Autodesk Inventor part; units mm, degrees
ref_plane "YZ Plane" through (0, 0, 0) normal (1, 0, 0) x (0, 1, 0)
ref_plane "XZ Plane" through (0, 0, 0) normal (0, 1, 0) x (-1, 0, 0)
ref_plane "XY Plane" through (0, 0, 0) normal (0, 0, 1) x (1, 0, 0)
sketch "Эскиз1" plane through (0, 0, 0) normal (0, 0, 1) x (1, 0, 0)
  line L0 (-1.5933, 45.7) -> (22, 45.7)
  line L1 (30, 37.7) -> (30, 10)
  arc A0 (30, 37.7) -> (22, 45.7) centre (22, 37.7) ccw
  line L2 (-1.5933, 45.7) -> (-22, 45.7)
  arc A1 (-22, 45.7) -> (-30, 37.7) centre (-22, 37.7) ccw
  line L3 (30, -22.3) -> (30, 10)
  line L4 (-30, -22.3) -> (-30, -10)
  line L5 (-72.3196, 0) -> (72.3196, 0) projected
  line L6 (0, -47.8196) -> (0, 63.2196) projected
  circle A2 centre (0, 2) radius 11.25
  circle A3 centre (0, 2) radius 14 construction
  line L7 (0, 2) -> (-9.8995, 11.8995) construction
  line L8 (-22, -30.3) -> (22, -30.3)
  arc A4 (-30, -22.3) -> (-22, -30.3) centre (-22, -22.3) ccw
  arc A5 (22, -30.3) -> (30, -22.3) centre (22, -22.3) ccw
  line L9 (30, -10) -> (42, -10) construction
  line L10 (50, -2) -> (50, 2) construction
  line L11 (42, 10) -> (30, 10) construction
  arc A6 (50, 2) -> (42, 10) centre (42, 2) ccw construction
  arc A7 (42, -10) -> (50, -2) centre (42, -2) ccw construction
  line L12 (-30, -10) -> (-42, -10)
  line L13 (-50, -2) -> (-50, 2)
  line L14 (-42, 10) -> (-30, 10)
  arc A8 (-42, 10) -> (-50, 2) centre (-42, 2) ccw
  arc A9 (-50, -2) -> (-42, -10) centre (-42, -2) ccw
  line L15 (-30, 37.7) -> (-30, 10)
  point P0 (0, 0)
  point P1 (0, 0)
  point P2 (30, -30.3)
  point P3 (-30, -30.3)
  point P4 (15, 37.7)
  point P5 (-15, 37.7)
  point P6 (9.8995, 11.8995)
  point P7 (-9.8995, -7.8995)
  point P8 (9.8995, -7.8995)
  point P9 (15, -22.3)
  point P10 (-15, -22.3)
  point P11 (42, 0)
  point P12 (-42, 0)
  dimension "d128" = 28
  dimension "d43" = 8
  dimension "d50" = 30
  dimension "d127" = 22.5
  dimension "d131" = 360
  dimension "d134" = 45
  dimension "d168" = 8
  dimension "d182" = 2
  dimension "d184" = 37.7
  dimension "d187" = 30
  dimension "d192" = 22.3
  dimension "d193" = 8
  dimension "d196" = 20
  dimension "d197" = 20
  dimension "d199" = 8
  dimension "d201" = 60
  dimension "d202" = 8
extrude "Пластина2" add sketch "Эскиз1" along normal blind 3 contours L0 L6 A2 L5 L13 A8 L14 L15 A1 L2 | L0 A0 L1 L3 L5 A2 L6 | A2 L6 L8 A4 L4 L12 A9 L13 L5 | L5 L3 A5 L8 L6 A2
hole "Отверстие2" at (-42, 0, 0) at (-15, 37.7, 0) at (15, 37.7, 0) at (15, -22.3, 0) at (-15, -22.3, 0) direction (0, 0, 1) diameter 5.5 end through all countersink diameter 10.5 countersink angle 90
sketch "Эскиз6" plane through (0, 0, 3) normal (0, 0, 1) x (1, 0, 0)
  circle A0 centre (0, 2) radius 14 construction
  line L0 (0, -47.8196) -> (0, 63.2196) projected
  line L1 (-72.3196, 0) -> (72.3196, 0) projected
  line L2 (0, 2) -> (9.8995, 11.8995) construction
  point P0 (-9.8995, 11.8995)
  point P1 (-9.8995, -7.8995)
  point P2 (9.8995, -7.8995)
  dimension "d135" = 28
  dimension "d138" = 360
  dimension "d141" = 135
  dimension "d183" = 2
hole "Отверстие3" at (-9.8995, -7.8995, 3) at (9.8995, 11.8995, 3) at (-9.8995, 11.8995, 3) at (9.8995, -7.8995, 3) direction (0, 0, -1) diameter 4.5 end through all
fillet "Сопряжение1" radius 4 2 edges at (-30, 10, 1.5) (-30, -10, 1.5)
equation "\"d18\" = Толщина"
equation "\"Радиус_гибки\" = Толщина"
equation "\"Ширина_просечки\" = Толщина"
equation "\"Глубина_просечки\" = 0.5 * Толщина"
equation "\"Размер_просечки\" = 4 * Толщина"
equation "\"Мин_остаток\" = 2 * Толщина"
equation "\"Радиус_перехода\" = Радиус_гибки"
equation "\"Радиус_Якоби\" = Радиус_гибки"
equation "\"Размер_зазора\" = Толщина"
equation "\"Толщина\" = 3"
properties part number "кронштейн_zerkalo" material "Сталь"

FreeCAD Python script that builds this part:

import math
import FreeCAD as App
import Part
import Sketcher

V = App.Vector


def edges_at(feature, points):
    """Names of the edges that pass closest to the given points."""
    edges = feature.Shape.Edges
    near = lambda p: min(range(len(edges)), key=lambda i: edges[i].distToShape(Part.Vertex(*p))[0])
    return sorted({f"Edge{near(p) + 1}" for p in points})

doc = App.newDocument("Part")
params = doc.addObject("Spreadsheet::Sheet", "Params")
for row, (alias, value) in enumerate([
    ("sketch1_radius", "8 mm"),
    ("sketch1_diameter", "22.5 mm"),
    ("sketch1_height", "60 mm"),
    ("pad1_length", "3 mm"),
    ("sketch2_diameter", "5.5 mm"),
    ("hole_diameter", "5.5 mm"),
    ("hole_csink_diameter", "10.5 mm"),
    ("sketch3_diameter", "4.5 mm"),
    ("hole2_diameter", "4.5 mm"),
    ("fillet_radius", "4 mm"),
], start=1):
    params.set(f"A{row}", alias)
    params.set(f"B{row}", "=" + value)
    params.setAlias(f"B{row}", alias)

body = doc.addObject("PartDesign::Body", "Body")

# Sketch on XY plane
sketch1 = body.newObject("Sketcher::SketchObject", "Sketch")
sketch1.AttachmentSupport = (doc.getObject("XY_Plane"), [""])
sketch1.MapMode = "FlatFace"
sketch1.addGeometry(Part.ArcOfCircle(Part.Circle(V(-22, 37.7, 0), V(0, 0, 1), 8), math.radians(90), math.radians(180)), False)
sketch1.addGeometry(Part.LineSegment(V(-30, 37.7, 0), V(-30, 10, 0)), False)
sketch1.addGeometry(Part.LineSegment(V(-30, 10, 0), V(-42, 10, 0)), False)
sketch1.addGeometry(Part.ArcOfCircle(Part.Circle(V(-42, 2, 0), V(0, 0, 1), 8), math.radians(90), math.radians(180)), False)
sketch1.addGeometry(Part.LineSegment(V(-50, 2, 0), V(-50, -2, 0)), False)
sketch1.addGeometry(Part.ArcOfCircle(Part.Circle(V(-42, -2, 0), V(0, 0, 1), 8), math.radians(180), math.radians(270)), False)
sketch1.addGeometry(Part.LineSegment(V(-42, -10, 0), V(-30, -10, 0)), False)
sketch1.addGeometry(Part.LineSegment(V(-30, -10, 0), V(-30, -22.3, 0)), False)
sketch1.addGeometry(Part.ArcOfCircle(Part.Circle(V(-22, -22.3, 0), V(0, 0, 1), 8), math.radians(180), math.radians(270)), False)
sketch1.addGeometry(Part.LineSegment(V(-22, -30.3, 0), V(22, -30.3, 0)), False)
sketch1.addGeometry(Part.ArcOfCircle(Part.Circle(V(22, -22.3, 0), V(0, 0, 1), 8), math.radians(-90), math.radians(0)), False)
sketch1.addGeometry(Part.LineSegment(V(30, -22.3, 0), V(30, 37.7, 0)), False)
sketch1.addGeometry(Part.ArcOfCircle(Part.Circle(V(22, 37.7, 0), V(0, 0, 1), 8), math.radians(0), math.radians(90)), False)
sketch1.addGeometry(Part.LineSegment(V(22, 45.7, 0), V(-22, 45.7, 0)), False)
sketch1.addGeometry(Part.Circle(V(0, 2, 0), V(0, 0, 1), 11.2), False)
sketch1.addConstraint(Sketcher.Constraint("Tangent", 0, 2, 1, 1))
sketch1.addConstraint(Sketcher.Constraint("Coincident", 1, 2, 2, 1))
sketch1.addConstraint(Sketcher.Constraint("Tangent", 2, 2, 3, 1))
sketch1.addConstraint(Sketcher.Constraint("Tangent", 3, 2, 4, 1))
sketch1.addConstraint(Sketcher.Constraint("Tangent", 4, 2, 5, 1))
sketch1.addConstraint(Sketcher.Constraint("Tangent", 5, 2, 6, 1))
sketch1.addConstraint(Sketcher.Constraint("Coincident", 6, 2, 7, 1))
sketch1.addConstraint(Sketcher.Constraint("Tangent", 7, 2, 8, 1))
sketch1.addConstraint(Sketcher.Constraint("Tangent", 8, 2, 9, 1))
sketch1.addConstraint(Sketcher.Constraint("Tangent", 9, 2, 10, 1))
sketch1.addConstraint(Sketcher.Constraint("Tangent", 10, 2, 11, 1))
sketch1.addConstraint(Sketcher.Constraint("Tangent", 11, 2, 12, 1))
sketch1.addConstraint(Sketcher.Constraint("Tangent", 12, 2, 13, 1))
sketch1.addConstraint(Sketcher.Constraint("Tangent", 13, 2, 0, 1))
sketch1.addConstraint(Sketcher.Constraint("Vertical", 1))
sketch1.addConstraint(Sketcher.Constraint("Horizontal", 2))
sketch1.addConstraint(Sketcher.Constraint("Vertical", 4))
sketch1.addConstraint(Sketcher.Constraint("Horizontal", 6))
sketch1.addConstraint(Sketcher.Constraint("Vertical", 7))
sketch1.addConstraint(Sketcher.Constraint("Horizontal", 9))
sketch1.addConstraint(Sketcher.Constraint("Vertical", 11))
sketch1.addConstraint(Sketcher.Constraint("Horizontal", 13))
sketch1.addConstraint(Sketcher.Constraint("Equal", 0, 3))
sketch1.addConstraint(Sketcher.Constraint("Equal", 3, 5))
sketch1.addConstraint(Sketcher.Constraint("Equal", 5, 8))
sketch1.addConstraint(Sketcher.Constraint("Equal", 8, 10))
sketch1.addConstraint(Sketcher.Constraint("Equal", 10, 12))
sketch1.addConstraint(Sketcher.Constraint("Symmetric", 1, 2, 6, 2, -1))
sketch1.addConstraint(Sketcher.Constraint("PointOnObject", 14, 3, -2))
sketch1.addConstraint(Sketcher.Constraint("Horizontal", 3, 3, 14, 3))
sketch1.addConstraint(Sketcher.Constraint("Radius", 0, 8.0))
sketch1.addConstraint(Sketcher.Constraint("Diameter", 14, 22.5))
sketch1.addConstraint(Sketcher.Constraint("DistanceY", 11, 1, 11, 2, 60.0))
sketch1.addConstraint(Sketcher.Constraint("DistanceY", -1, 1, 3, 3, 2.0))
sketch1.addConstraint(Sketcher.Constraint("DistanceX", 0, 2, -1, 1, 30.0))
sketch1.addConstraint(Sketcher.Constraint("DistanceX", -1, 1, 10, 2, 30.0))
sketch1.addConstraint(Sketcher.Constraint("DistanceX", 3, 3, 0, 3, 20.0))
sketch1.addConstraint(Sketcher.Constraint("DistanceY", -1, 1, 0, 3, 37.7))
sketch1.setExpression("Constraints[30]", "Params.sketch1_radius")
sketch1.setExpression("Constraints[31]", "Params.sketch1_diameter")
sketch1.setExpression("Constraints[32]", "Params.sketch1_height")
pad1 = body.newObject("PartDesign::Pad", "Pad")
pad1.Profile = sketch1
pad1.setExpression("Length", "Params.pad1_length")

# Sketch on XY plane
sketch2 = body.newObject("Sketcher::SketchObject", "Sketch001")
sketch2.AttachmentSupport = (doc.getObject("XY_Plane"), [""])
sketch2.MapMode = "FlatFace"
sketch2.addGeometry(Part.Circle(V(-42, 0, 0), V(0, 0, 1), 2.8), False)
sketch2.addGeometry(Part.Circle(V(-15, 37.7, 0), V(0, 0, 1), 2.8), False)
sketch2.addGeometry(Part.Circle(V(15, 37.7, 0), V(0, 0, 1), 2.8), False)
sketch2.addGeometry(Part.Circle(V(15, -22.3, 0), V(0, 0, 1), 2.8), False)
sketch2.addGeometry(Part.Circle(V(-15, -22.3, 0), V(0, 0, 1), 2.8), False)
sketch2.addConstraint(Sketcher.Constraint("Equal", 0, 1))
sketch2.addConstraint(Sketcher.Constraint("Equal", 1, 2))
sketch2.addConstraint(Sketcher.Constraint("Equal", 2, 3))
sketch2.addConstraint(Sketcher.Constraint("Equal", 3, 4))
sketch2.addConstraint(Sketcher.Constraint("Symmetric", 1, 3, 2, 3, -2))
sketch2.addConstraint(Sketcher.Constraint("Symmetric", 3, 3, 4, 3, -2))
sketch2.addConstraint(Sketcher.Constraint("PointOnObject", 0, 3, -1))
sketch2.addConstraint(Sketcher.Constraint("Vertical", 2, 3, 3, 3))
sketch2.addConstraint(Sketcher.Constraint("Diameter", 0, 5.5))
sketch2.addConstraint(Sketcher.Constraint("DistanceX", 0, 3, -1, 1, 42.0))
sketch2.addConstraint(Sketcher.Constraint("DistanceX", 1, 3, -1, 1, 15.0))
sketch2.addConstraint(Sketcher.Constraint("DistanceY", 3, 3, 2, 3, 60.0))
sketch2.addConstraint(Sketcher.Constraint("DistanceY", -1, 1, 1, 3, 37.7))
sketch2.setExpression("Constraints[8]", "Params.sketch2_diameter")
doc.recompute()
hole = body.newObject("PartDesign::Hole", "Hole")
hole.Profile = sketch2
hole.ThreadType = "None"
hole.setExpression("Diameter", "Params.hole_diameter")
hole.DepthType = "ThroughAll"
hole.HoleCutType = "Countersink"
hole.setExpression("HoleCutDiameter", "Params.hole_csink_diameter")
hole.HoleCutCountersinkAngle = 90
hole.Reversed = True

# Sketch on XY plane
sketch3 = body.newObject("Sketcher::SketchObject", "Sketch002")
sketch3.AttachmentSupport = (doc.getObject("XY_Plane"), [""])
sketch3.MapMode = "FlatFace"
sketch3.AttachmentOffset = App.Placement(V(0, 0, 3), App.Rotation())
sketch3.addGeometry(Part.Circle(V(-9.9, -7.9, 0), V(0, 0, 1), 2.2), False)
sketch3.addGeometry(Part.Circle(V(9.9, 11.9, 0), V(0, 0, 1), 2.2), False)
sketch3.addGeometry(Part.Circle(V(-9.9, 11.9, 0), V(0, 0, 1), 2.2), False)
sketch3.addGeometry(Part.Circle(V(9.9, -7.9, 0), V(0, 0, 1), 2.2), False)
sketch3.addConstraint(Sketcher.Constraint("Equal", 0, 1))
sketch3.addConstraint(Sketcher.Constraint("Equal", 1, 2))
sketch3.addConstraint(Sketcher.Constraint("Equal", 2, 3))
sketch3.addConstraint(Sketcher.Constraint("Symmetric", 1, 3, 2, 3, -2))
sketch3.addConstraint(Sketcher.Constraint("Symmetric", 0, 3, 3, 3, -2))
sketch3.addConstraint(Sketcher.Constraint("Vertical", 0, 3, 2, 3))
sketch3.addConstraint(Sketcher.Constraint("Diameter", 0, 4.5))
sketch3.addConstraint(Sketcher.Constraint("DistanceX", 0, 3, 1, 3, 19.799))
sketch3.addConstraint(Sketcher.Constraint("DistanceY", 0, 3, 1, 3, 19.799))
sketch3.addConstraint(Sketcher.Constraint("DistanceY", 0, 3, -1, 1, 7.8995))
sketch3.setExpression("Constraints[6]", "Params.sketch3_diameter")
doc.recompute()
hole2 = body.newObject("PartDesign::Hole", "Hole001")
hole2.Profile = sketch3
hole2.ThreadType = "None"
hole2.setExpression("Diameter", "Params.hole2_diameter")
hole2.DepthType = "ThroughAll"
doc.recompute()

fillet = body.newObject("PartDesign::Fillet", "Fillet")
fillet.Base = (hole2, edges_at(hole2, [(-30, 10, 1.5), (-30, -10, 1.5)]))
fillet.setExpression("Radius", "Params.fillet_radius")

doc.recompute()
